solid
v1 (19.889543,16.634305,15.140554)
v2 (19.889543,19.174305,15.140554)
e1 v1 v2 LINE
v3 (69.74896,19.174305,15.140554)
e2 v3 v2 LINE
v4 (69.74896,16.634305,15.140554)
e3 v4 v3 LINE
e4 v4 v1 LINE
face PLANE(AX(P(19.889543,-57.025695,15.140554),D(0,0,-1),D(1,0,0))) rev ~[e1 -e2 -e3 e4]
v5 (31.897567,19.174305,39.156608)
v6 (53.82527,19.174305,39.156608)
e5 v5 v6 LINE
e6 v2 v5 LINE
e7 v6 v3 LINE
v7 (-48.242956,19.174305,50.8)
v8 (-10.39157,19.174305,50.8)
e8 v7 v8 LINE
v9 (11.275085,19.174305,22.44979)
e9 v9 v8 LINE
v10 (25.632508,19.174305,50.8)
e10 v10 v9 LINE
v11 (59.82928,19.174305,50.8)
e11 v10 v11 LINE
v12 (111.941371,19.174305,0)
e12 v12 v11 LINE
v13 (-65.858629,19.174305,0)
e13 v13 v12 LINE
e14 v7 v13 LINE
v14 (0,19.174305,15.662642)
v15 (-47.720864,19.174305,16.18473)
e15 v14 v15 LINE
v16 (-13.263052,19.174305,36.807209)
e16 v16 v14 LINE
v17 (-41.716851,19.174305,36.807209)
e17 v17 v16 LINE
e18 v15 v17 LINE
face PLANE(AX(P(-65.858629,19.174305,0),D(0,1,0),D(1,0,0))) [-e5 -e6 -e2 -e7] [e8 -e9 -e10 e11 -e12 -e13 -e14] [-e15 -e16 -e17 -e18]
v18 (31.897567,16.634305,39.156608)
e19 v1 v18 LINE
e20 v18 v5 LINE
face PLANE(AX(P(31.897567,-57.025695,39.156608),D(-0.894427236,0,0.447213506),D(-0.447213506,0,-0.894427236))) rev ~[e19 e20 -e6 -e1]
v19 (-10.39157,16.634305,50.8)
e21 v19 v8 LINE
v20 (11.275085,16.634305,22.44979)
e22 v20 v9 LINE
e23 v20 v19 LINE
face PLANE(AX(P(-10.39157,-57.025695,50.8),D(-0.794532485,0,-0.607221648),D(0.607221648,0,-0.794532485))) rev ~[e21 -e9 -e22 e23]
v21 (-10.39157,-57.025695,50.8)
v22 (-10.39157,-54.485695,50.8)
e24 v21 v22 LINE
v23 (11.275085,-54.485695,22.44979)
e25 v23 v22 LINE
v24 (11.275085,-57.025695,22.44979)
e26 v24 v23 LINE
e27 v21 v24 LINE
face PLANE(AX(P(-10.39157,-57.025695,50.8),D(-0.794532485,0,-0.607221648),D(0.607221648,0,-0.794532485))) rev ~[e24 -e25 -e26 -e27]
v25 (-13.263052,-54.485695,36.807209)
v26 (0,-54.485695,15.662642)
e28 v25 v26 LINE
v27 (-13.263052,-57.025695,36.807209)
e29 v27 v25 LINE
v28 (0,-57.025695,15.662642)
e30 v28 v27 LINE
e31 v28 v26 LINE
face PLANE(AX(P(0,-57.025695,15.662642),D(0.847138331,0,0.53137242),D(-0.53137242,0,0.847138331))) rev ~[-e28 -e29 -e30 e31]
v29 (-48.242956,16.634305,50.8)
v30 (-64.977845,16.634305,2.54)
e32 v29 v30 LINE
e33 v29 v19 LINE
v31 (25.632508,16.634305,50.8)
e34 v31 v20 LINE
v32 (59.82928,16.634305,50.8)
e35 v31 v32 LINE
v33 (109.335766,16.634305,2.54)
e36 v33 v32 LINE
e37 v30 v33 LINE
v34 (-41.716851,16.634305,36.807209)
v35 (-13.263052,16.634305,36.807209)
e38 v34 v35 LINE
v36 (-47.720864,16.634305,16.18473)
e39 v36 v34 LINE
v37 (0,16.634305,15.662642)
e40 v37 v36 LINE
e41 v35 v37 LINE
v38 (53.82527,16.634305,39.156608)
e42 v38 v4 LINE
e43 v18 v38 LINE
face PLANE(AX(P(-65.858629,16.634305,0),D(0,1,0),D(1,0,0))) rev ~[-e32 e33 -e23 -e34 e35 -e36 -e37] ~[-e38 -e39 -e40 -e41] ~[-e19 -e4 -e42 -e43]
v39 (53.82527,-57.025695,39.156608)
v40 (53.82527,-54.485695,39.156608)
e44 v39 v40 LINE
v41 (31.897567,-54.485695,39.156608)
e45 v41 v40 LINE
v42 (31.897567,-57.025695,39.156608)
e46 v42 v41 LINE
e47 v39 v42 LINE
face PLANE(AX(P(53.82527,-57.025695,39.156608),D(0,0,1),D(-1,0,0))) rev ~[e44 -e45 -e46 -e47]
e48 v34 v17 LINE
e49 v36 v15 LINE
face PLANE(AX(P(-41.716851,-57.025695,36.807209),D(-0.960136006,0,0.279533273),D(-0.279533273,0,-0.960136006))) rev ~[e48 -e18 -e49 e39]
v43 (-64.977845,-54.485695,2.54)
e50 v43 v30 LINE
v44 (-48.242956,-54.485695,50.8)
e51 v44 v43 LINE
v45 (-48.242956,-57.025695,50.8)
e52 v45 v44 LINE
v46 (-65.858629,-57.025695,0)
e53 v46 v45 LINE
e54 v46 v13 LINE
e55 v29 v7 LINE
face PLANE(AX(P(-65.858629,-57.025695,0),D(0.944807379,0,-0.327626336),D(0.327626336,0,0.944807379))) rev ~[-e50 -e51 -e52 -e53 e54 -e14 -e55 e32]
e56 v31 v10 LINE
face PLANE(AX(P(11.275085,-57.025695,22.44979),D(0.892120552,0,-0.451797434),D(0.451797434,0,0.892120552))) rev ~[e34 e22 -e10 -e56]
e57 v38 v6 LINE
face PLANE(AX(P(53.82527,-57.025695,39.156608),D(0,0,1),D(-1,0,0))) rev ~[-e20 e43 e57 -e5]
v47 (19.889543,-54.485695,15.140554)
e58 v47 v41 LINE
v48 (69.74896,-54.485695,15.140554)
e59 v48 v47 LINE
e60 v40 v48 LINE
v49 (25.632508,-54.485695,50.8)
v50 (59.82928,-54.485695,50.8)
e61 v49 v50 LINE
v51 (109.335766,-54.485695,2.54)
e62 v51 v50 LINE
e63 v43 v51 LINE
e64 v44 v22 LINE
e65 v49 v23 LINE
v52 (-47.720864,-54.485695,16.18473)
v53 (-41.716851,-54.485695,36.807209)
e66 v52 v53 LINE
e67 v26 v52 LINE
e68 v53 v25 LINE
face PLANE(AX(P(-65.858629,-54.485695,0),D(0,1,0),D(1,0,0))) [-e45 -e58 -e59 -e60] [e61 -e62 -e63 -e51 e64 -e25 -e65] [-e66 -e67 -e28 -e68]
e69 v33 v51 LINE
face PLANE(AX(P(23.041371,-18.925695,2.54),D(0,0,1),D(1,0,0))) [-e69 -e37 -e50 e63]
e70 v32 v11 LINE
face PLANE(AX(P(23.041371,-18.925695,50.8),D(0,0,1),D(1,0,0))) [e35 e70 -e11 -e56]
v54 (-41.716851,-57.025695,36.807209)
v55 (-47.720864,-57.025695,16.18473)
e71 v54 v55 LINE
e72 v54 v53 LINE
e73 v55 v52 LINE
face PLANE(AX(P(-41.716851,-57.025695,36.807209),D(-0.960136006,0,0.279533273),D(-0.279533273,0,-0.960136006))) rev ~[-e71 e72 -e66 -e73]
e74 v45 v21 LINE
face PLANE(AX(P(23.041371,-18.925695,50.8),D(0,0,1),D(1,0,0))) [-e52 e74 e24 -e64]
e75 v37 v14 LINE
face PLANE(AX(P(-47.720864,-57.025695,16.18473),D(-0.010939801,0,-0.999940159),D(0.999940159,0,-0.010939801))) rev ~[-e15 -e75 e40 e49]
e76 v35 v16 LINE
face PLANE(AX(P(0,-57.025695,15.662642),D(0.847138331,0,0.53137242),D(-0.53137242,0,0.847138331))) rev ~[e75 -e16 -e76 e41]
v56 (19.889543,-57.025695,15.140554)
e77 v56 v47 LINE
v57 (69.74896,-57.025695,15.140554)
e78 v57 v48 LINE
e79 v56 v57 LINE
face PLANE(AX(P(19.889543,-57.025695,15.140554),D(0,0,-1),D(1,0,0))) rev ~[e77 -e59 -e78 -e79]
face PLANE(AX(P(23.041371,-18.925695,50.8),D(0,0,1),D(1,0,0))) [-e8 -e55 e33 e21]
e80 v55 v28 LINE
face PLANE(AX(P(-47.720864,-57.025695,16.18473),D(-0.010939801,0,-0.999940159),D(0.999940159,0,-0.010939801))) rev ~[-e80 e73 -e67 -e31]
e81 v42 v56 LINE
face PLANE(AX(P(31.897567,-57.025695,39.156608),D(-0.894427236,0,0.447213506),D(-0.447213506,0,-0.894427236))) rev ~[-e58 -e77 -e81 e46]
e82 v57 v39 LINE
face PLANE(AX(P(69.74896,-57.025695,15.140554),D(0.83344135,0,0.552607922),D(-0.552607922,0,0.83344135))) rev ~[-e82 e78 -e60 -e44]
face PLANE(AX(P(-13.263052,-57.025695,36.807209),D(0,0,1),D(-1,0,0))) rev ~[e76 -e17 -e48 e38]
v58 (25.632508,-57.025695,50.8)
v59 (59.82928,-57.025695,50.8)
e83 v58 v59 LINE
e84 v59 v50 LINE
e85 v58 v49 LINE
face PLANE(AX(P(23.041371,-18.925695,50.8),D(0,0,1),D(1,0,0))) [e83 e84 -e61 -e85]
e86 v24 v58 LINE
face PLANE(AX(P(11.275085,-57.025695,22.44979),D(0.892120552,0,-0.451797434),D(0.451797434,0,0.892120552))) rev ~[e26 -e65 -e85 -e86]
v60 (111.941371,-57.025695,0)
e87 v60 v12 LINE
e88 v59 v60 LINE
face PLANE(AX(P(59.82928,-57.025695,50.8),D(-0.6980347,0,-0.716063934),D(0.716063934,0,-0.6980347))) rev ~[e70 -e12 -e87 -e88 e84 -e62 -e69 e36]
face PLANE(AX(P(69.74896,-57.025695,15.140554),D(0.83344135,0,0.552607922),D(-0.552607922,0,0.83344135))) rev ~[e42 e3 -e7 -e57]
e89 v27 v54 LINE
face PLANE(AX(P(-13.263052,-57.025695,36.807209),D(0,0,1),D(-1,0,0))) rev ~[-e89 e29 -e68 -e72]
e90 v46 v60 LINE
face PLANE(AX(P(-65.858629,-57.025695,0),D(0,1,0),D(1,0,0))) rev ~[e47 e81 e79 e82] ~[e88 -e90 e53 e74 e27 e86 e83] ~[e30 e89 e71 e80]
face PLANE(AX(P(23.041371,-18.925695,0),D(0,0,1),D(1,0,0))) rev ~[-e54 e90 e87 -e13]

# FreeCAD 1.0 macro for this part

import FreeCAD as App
import Part
import Sketcher
from FreeCAD import Vector
Q = App.Units.Quantity


def faces_at(feature, points):
    """Names of the faces that lie closest to the given points."""
    faces = feature.Shape.Faces
    near = lambda p: min(range(len(faces)), key=lambda i: faces[i].distToShape(Part.Vertex(*p))[0])
    return sorted({f"Face{near(p) + 1}" for p in points})


def add_polygon(sketch, points):
    """Adds a closed chain of lines whose ends are joined by coincident constraints."""
    first, n = sketch.GeometryCount, len(points)
    for a, b in zip(points, points[1:] + points[:1]):
        sketch.addGeometry(Part.LineSegment(App.Vector(*a, 0), App.Vector(*b, 0)), False)
    for i in range(n):
        sketch.addConstraint(Sketcher.Constraint("Coincident", first + i, 2, first + (i + 1) % n, 1))

doc = App.newDocument("Part")
body = doc.addObject("PartDesign::Body", "Body")

# Sketch on XY plane
sketch1 = body.newObject("Sketcher::SketchObject", "Sketch")
sketch1.AttachmentSupport = (doc.getObject("XY_Plane"), [""])
sketch1.MapMode = "FlatFace"
add_polygon(sketch1, [(-66, 19), (-66, -57), (112, -57), (112, 19)])  # lines 0-3
sketch1.addConstraint([
    Sketcher.Constraint("Vertical", 0),
    Sketcher.Constraint("Horizontal", 1),
    Sketcher.Constraint("Vertical", 2),
    Sketcher.Constraint("Horizontal", 3),
    Sketcher.Constraint("DistanceX", 1, 1, 1, 2, Q("7 in")),
    Sketcher.Constraint("DistanceY", 0, 2, 0, 1, Q("3 in")),
    Sketcher.Constraint("DistanceX", 0, 2, -1, 1, 65.858629),
    Sketcher.Constraint("DistanceY", 0, 2, -1, 1, 57.025695),
])
pad1 = body.newObject("PartDesign::Pad", "Pad")
pad1.Profile = sketch1
pad1.Length = Q("2 in")
doc.recompute()

thickness = body.newObject("PartDesign::Thickness", "Thickness")
thickness.Base = (pad1, faces_at(pad1, [(23.041, -18.926, 50.8), (-65.859, -18.926, 25.4), (111.941, -18.926, 25.4)]))
thickness.Value = Q("0.1 in")
thickness.Reversed = True
thickness.Join = "Arc"

# Sketch on XZ plane
sketch2 = body.newObject("Sketcher::SketchObject", "Sketch001")
sketch2.AttachmentSupport = (doc.getObject("XZ_Plane"), [""])
sketch2.MapMode = "FlatFace"
sketch2.AttachmentOffset = App.Placement(Vector(0, 0, 57.025695), App.Rotation())
add_polygon(sketch2, [(-74, 69), (-66, 0), (-48, 51), (-10, 51), (11, 22), (26, 51), (60, 51), (112, 0), (112, 69)])  # lines 0-8
sketch2.addConstraint([
    Sketcher.Constraint("Horizontal", 2),
    Sketcher.Constraint("Horizontal", 5),
    Sketcher.Constraint("Vertical", 7),
    Sketcher.Constraint("Horizontal", 8),
    Sketcher.Constraint("PointOnObject", 0, 2, -1),
    Sketcher.Constraint("PointOnObject", 6, 2, -1),
    Sketcher.Constraint("Horizontal", 2, 2, 4, 2),
    Sketcher.Constraint("DistanceY", -1, 1, 1, 2, Q("2 in")),
    Sketcher.Constraint("DistanceX", 5, 1, 5, 2, 34.196772),
    Sketcher.Constraint("DistanceY", 7, 1, 7, 2, 69.43772),
    Sketcher.Constraint("DistanceX", 8, 2, 1, 2, 26.202299),
    Sketcher.Constraint("Distance", 4, 31.778452),
    Sketcher.Constraint("Distance", 6, 72.775752),
    Sketcher.Constraint("DistanceX", 2, 1, 2, 2, 37.851386),
    Sketcher.Constraint("DistanceX", 8, 2, 8, 1, 186.386626),
    Sketcher.Constraint("DistanceX", 0, 2, -1, 1, 65.858629),
    Sketcher.Constraint("DistanceX", 2, 2, -1, 1, 10.39157),
    Sketcher.Constraint("DistanceY", -1, 1, 3, 2, 22.44979),
])
pocket1 = body.newObject("PartDesign::Pocket", "Pocket")
pocket1.Profile = sketch2
pocket1.Type = "ThroughAll"

# Sketch on XZ plane
sketch3 = body.newObject("Sketcher::SketchObject", "Sketch002")
sketch3.AttachmentSupport = (doc.getObject("XZ_Plane"), [""])
sketch3.MapMode = "FlatFace"
sketch3.AttachmentOffset = App.Placement(Vector(0, 0, 57.025695), App.Rotation())
add_polygon(sketch3, [(-41.716851, 36.807209), (-47.720864, 16.18473), (0, 15.662642), (-13.263052, 36.807209)])  # lines 0-3
sketch3.addConstraint([
    Sketcher.Constraint("Horizontal", 3),
    Sketcher.Constraint("PointOnObject", 1, 2, -2),
    Sketcher.Constraint("DistanceX", 3, 2, 3, 1, 28.453799),
    Sketcher.Constraint("Distance", 1, 47.72372),
    Sketcher.Constraint("DistanceY", -1, 1, 0, 2, 16.18473),
    Sketcher.Constraint("DistanceY", -1, 1, 2, 2, 36.807209),
    Sketcher.Constraint("DistanceX", 3, 2, -1, 1, 41.716851),
    Sketcher.Constraint("DistanceX", 0, 2, 2, 2, 34.457812),
])
pocket2 = body.newObject("PartDesign::Pocket", "Pocket001")
pocket2.Profile = sketch3
pocket2.Type = "ThroughAll"

# Sketch on XZ plane
sketch4 = body.newObject("Sketcher::SketchObject", "Sketch003")
sketch4.AttachmentSupport = (doc.getObject("XZ_Plane"), [""])
sketch4.MapMode = "FlatFace"
sketch4.AttachmentOffset = App.Placement(Vector(0, 0, 57.025695), App.Rotation())
add_polygon(sketch4, [(32, 39), (20, 15), (70, 15), (54, 39)])  # lines 0-3
sketch4.addConstraint([
    Sketcher.Constraint("Horizontal", 1),
    Sketcher.Constraint("Horizontal", 3),
    Sketcher.Constraint("Distance", 2, 28.81553),
    Sketcher.Constraint("DistanceX", 1, 1, 1, 2, 49.859417),
    Sketcher.Constraint("DistanceX", 3, 2, 3, 1, 21.927703),
    Sketcher.Constraint("DistanceX", -1, 1, 1, 2, 69.74896),
    Sketcher.Constraint("DistanceX", -1, 1, 2, 2, 53.82527),
    Sketcher.Constraint("DistanceY", -1, 1, 0, 2, 15.140554),
])
pocket3 = body.newObject("PartDesign::Pocket", "Pocket002")
pocket3.Profile = sketch4
pocket3.Type = "ThroughAll"

doc.recompute()
